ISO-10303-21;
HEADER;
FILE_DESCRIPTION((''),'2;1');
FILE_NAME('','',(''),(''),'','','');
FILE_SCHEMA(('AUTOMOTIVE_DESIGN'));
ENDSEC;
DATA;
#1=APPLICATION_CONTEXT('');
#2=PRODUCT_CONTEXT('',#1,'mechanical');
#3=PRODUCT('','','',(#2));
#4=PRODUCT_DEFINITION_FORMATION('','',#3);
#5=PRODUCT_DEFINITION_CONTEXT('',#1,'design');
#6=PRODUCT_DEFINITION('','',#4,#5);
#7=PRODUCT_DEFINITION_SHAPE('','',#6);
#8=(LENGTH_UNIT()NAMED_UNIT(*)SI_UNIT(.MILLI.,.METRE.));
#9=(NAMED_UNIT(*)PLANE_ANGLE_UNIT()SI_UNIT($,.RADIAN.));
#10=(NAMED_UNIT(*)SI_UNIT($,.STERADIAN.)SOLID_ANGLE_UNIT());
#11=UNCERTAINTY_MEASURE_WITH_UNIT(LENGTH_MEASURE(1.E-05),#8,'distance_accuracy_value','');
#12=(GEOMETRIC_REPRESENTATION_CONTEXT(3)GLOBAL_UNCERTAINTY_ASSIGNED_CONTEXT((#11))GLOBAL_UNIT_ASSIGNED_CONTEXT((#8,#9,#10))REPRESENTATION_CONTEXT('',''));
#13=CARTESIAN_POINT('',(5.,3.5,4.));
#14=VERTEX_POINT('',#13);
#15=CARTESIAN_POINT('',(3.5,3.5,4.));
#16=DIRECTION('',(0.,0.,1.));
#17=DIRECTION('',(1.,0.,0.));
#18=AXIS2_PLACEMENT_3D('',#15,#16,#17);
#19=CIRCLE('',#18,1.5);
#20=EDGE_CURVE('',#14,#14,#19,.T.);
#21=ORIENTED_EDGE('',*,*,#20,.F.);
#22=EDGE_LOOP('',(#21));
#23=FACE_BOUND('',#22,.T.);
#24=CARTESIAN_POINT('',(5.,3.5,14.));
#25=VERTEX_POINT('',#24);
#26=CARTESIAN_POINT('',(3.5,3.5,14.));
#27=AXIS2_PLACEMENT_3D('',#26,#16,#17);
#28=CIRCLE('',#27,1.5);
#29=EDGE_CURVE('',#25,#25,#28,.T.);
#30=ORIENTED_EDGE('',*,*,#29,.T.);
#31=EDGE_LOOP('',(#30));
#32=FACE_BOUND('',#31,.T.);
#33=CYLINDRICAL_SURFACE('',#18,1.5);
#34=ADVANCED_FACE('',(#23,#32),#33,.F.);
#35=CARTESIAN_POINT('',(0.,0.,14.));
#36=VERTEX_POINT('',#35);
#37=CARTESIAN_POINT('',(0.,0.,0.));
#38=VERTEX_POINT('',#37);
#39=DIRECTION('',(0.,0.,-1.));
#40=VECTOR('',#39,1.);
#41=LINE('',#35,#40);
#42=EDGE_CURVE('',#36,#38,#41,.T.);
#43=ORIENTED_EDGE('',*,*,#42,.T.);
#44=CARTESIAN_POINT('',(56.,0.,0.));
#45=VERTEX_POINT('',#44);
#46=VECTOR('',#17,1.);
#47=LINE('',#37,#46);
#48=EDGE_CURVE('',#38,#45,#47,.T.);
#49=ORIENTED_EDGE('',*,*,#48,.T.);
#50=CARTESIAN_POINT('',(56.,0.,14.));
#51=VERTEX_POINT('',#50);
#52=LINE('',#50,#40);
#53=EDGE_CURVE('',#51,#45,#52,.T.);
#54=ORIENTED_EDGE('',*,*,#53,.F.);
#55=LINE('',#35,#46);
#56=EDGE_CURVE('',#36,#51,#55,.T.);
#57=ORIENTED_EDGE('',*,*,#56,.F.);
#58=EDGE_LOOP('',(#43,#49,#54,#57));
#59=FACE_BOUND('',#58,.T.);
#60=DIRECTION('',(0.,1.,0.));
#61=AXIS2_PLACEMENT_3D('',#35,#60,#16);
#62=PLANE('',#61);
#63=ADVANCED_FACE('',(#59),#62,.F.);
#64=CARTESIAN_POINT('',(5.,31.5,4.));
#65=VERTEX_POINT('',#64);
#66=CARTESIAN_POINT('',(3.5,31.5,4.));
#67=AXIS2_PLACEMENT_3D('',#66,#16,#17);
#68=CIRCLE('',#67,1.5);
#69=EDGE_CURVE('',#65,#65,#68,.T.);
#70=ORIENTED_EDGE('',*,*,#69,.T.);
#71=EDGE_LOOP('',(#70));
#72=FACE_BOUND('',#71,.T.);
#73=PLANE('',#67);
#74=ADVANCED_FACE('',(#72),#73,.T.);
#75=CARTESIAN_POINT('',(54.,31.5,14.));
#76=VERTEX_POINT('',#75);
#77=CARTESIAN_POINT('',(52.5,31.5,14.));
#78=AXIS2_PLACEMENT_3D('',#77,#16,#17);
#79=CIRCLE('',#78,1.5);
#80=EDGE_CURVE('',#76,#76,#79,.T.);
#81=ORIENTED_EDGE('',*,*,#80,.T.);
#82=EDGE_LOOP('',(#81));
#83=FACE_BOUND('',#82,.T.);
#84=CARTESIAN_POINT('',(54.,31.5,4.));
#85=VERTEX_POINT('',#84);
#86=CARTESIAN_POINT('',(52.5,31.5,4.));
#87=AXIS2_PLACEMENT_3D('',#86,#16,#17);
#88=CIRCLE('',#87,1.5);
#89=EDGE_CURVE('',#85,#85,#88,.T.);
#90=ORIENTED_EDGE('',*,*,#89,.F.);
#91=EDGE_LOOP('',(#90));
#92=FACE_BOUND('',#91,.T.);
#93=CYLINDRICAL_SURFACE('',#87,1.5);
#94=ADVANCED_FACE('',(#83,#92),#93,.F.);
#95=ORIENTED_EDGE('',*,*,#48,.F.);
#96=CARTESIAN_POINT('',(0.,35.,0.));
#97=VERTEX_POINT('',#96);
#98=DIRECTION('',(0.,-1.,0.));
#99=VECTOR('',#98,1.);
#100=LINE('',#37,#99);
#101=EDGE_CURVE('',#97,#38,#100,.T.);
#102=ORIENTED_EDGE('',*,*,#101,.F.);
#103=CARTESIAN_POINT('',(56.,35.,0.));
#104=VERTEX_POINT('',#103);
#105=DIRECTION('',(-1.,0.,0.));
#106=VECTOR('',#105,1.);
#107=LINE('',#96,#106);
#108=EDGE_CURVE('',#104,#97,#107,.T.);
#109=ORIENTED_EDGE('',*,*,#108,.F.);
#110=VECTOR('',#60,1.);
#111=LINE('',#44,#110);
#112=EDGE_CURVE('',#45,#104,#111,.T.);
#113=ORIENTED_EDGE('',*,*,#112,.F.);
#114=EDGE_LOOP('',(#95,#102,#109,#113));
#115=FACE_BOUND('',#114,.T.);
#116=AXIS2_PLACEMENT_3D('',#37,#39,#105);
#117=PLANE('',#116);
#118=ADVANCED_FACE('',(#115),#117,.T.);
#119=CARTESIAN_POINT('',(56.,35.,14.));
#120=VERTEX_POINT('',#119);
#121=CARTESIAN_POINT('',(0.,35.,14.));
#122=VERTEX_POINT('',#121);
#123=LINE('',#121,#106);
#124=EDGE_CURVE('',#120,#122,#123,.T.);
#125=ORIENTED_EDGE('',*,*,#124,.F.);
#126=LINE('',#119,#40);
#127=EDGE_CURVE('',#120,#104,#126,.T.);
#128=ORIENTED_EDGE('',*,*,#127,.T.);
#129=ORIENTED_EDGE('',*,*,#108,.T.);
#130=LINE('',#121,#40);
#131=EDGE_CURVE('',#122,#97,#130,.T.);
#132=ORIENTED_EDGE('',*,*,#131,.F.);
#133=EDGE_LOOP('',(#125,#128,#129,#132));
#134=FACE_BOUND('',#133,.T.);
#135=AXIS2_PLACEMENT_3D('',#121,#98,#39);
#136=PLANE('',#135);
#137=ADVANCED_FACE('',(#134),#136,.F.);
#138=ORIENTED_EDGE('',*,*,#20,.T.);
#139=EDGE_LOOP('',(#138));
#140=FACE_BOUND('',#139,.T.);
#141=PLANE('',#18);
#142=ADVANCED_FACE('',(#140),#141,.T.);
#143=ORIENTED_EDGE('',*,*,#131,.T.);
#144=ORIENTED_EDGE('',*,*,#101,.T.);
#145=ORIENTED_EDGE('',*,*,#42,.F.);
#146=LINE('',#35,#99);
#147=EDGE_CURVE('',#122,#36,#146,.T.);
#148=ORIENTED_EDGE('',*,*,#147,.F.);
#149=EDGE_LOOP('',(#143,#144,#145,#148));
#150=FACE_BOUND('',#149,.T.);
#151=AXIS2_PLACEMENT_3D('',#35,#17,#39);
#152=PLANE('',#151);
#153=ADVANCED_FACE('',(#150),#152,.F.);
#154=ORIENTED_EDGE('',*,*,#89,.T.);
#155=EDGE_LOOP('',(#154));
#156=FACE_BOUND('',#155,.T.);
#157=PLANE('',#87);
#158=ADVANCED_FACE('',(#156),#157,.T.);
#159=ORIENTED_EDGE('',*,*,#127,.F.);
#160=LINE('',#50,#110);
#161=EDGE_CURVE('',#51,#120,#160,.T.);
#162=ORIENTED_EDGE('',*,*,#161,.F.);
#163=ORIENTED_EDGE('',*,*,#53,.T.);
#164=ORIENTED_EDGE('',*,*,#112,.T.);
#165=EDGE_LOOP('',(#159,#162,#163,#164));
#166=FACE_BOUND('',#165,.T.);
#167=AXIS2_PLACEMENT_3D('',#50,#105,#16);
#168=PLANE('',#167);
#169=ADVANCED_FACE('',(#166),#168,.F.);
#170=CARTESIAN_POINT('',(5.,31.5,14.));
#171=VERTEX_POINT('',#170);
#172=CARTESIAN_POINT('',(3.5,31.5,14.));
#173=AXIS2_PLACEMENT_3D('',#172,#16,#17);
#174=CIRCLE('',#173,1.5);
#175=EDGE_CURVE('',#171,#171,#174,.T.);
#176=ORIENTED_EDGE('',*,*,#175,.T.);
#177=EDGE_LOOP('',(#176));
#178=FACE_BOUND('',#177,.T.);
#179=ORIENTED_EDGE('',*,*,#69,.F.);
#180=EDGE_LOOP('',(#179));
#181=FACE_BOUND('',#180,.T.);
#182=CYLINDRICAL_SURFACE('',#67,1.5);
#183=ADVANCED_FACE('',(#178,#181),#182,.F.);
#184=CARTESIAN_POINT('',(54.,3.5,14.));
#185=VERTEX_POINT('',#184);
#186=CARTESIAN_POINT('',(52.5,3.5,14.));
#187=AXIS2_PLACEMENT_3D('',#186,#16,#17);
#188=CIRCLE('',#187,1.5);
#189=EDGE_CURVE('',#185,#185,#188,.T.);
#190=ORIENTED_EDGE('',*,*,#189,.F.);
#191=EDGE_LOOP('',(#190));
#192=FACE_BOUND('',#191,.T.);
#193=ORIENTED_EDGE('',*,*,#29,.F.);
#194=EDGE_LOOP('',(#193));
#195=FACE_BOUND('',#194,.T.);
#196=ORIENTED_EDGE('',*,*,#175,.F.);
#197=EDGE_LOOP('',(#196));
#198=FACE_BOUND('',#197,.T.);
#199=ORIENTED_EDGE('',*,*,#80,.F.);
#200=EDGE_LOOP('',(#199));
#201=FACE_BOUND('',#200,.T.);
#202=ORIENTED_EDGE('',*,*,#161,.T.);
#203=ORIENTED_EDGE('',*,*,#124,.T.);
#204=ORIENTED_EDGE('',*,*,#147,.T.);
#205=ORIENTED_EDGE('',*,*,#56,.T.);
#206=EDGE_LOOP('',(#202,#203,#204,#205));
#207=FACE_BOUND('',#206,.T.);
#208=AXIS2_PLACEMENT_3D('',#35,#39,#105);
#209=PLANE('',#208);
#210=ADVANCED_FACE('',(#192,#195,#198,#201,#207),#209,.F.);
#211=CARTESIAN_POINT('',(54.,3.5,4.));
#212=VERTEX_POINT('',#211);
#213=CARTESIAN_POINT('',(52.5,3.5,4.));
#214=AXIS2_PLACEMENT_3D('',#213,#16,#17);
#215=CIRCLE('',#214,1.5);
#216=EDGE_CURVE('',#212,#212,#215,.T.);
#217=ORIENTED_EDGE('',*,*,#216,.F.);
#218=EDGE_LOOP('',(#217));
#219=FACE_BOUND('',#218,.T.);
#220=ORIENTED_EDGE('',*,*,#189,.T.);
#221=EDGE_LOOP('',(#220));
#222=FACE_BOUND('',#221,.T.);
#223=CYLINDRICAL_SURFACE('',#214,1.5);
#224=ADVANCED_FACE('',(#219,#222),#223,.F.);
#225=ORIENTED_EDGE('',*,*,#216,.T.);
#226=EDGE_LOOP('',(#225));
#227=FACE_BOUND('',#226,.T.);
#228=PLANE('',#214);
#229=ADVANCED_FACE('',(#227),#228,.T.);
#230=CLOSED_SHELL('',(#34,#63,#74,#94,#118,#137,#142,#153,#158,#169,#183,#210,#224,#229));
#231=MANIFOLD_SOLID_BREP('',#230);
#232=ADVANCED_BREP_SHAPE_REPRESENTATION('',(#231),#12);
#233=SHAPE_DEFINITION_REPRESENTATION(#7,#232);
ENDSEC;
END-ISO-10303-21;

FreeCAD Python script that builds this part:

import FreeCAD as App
import Part
import Sketcher
Q = App.Units.Quantity


def add_polygon(sketch, points):
    """Adds a closed chain of lines whose ends are joined by coincident constraints."""
    first, n = sketch.GeometryCount, len(points)
    for a, b in zip(points, points[1:] + points[:1]):
        sketch.addGeometry(Part.LineSegment(App.Vector(*a, 0), App.Vector(*b, 0)), False)
    for i in range(n):
        sketch.addConstraint(Sketcher.Constraint("Coincident", first + i, 2, first + (i + 1) % n, 1))

doc = App.newDocument("Part")
body = doc.addObject("PartDesign::Body", "Body")

# Sketch on XY plane
sketch1 = body.newObject("Sketcher::SketchObject", "Sketch")
sketch1.AttachmentSupport = (doc.getObject("XY_Plane"), [""])
sketch1.MapMode = "FlatFace"
add_polygon(sketch1, [(0, 35), (0, 0), (56, 0), (56, 35)])  # lines 0-3
sketch1.addConstraint(Sketcher.Constraint("Vertical", 0))
sketch1.addConstraint(Sketcher.Constraint("Horizontal", 1))
sketch1.addConstraint(Sketcher.Constraint("Vertical", 2))
sketch1.addConstraint(Sketcher.Constraint("Horizontal", 3))
sketch1.addConstraint(Sketcher.Constraint("Coincident", 0, 2, -1, 1))
sketch1.addConstraint(Sketcher.Constraint("DistanceX", 1, 1, 1, 2, Q("56 mm")))
sketch1.addConstraint(Sketcher.Constraint("DistanceY", 0, 2, 0, 1, Q("35 mm")))
pad1 = body.newObject("PartDesign::Pad", "Pad")
pad1.Profile = sketch1
pad1.Length = 14

# Sketch on XY plane
sketch2 = body.newObject("Sketcher::SketchObject", "Sketch001")
sketch2.AttachmentSupport = (doc.getObject("XY_Plane"), [""])
sketch2.MapMode = "FlatFace"
sketch2.AttachmentOffset = App.Placement(App.Vector(0, 0, 14), App.Rotation())
sketch2.addGeometry(Part.Circle(App.Vector(3.5, 31.5, 0), App.Vector(0, 0, 1), 1.5), False)
sketch2.addGeometry(Part.Circle(App.Vector(3.5, 3.5, 0), App.Vector(0, 0, 1), 1.5), False)
sketch2.addGeometry(Part.Circle(App.Vector(52.5, 31.5, 0), App.Vector(0, 0, 1), 1.5), False)
sketch2.addGeometry(Part.Circle(App.Vector(52.5, 3.5, 0), App.Vector(0, 0, 1), 1.5), False)
sketch2.addConstraint(Sketcher.Constraint("Equal", 0, 1))
sketch2.addConstraint(Sketcher.Constraint("Equal", 1, 2))
sketch2.addConstraint(Sketcher.Constraint("Equal", 2, 3))
sketch2.addConstraint(Sketcher.Constraint("Horizontal", 0, 3, 2, 3))
sketch2.addConstraint(Sketcher.Constraint("Horizontal", 1, 3, 3, 3))
sketch2.addConstraint(Sketcher.Constraint("Vertical", 0, 3, 1, 3))
sketch2.addConstraint(Sketcher.Constraint("Vertical", 2, 3, 3, 3))
sketch2.addConstraint(Sketcher.Constraint("Diameter", 0, Q("3 mm")))
sketch2.addConstraint(Sketcher.Constraint("DistanceY", 1, 3, 0, 3, Q("28 mm")))
sketch2.addConstraint(Sketcher.Constraint("DistanceX", 0, 3, 2, 3, Q("49 mm")))
sketch2.addConstraint(Sketcher.Constraint("DistanceX", -1, 1, 0, 3, Q("3.5 mm")))
sketch2.addConstraint(Sketcher.Constraint("DistanceY", -1, 1, 0, 3, Q("31.5 mm")))
pocket1 = body.newObject("PartDesign::Pocket", "Pocket")
pocket1.Profile = sketch2
pocket1.Length = 10

doc.recompute()
